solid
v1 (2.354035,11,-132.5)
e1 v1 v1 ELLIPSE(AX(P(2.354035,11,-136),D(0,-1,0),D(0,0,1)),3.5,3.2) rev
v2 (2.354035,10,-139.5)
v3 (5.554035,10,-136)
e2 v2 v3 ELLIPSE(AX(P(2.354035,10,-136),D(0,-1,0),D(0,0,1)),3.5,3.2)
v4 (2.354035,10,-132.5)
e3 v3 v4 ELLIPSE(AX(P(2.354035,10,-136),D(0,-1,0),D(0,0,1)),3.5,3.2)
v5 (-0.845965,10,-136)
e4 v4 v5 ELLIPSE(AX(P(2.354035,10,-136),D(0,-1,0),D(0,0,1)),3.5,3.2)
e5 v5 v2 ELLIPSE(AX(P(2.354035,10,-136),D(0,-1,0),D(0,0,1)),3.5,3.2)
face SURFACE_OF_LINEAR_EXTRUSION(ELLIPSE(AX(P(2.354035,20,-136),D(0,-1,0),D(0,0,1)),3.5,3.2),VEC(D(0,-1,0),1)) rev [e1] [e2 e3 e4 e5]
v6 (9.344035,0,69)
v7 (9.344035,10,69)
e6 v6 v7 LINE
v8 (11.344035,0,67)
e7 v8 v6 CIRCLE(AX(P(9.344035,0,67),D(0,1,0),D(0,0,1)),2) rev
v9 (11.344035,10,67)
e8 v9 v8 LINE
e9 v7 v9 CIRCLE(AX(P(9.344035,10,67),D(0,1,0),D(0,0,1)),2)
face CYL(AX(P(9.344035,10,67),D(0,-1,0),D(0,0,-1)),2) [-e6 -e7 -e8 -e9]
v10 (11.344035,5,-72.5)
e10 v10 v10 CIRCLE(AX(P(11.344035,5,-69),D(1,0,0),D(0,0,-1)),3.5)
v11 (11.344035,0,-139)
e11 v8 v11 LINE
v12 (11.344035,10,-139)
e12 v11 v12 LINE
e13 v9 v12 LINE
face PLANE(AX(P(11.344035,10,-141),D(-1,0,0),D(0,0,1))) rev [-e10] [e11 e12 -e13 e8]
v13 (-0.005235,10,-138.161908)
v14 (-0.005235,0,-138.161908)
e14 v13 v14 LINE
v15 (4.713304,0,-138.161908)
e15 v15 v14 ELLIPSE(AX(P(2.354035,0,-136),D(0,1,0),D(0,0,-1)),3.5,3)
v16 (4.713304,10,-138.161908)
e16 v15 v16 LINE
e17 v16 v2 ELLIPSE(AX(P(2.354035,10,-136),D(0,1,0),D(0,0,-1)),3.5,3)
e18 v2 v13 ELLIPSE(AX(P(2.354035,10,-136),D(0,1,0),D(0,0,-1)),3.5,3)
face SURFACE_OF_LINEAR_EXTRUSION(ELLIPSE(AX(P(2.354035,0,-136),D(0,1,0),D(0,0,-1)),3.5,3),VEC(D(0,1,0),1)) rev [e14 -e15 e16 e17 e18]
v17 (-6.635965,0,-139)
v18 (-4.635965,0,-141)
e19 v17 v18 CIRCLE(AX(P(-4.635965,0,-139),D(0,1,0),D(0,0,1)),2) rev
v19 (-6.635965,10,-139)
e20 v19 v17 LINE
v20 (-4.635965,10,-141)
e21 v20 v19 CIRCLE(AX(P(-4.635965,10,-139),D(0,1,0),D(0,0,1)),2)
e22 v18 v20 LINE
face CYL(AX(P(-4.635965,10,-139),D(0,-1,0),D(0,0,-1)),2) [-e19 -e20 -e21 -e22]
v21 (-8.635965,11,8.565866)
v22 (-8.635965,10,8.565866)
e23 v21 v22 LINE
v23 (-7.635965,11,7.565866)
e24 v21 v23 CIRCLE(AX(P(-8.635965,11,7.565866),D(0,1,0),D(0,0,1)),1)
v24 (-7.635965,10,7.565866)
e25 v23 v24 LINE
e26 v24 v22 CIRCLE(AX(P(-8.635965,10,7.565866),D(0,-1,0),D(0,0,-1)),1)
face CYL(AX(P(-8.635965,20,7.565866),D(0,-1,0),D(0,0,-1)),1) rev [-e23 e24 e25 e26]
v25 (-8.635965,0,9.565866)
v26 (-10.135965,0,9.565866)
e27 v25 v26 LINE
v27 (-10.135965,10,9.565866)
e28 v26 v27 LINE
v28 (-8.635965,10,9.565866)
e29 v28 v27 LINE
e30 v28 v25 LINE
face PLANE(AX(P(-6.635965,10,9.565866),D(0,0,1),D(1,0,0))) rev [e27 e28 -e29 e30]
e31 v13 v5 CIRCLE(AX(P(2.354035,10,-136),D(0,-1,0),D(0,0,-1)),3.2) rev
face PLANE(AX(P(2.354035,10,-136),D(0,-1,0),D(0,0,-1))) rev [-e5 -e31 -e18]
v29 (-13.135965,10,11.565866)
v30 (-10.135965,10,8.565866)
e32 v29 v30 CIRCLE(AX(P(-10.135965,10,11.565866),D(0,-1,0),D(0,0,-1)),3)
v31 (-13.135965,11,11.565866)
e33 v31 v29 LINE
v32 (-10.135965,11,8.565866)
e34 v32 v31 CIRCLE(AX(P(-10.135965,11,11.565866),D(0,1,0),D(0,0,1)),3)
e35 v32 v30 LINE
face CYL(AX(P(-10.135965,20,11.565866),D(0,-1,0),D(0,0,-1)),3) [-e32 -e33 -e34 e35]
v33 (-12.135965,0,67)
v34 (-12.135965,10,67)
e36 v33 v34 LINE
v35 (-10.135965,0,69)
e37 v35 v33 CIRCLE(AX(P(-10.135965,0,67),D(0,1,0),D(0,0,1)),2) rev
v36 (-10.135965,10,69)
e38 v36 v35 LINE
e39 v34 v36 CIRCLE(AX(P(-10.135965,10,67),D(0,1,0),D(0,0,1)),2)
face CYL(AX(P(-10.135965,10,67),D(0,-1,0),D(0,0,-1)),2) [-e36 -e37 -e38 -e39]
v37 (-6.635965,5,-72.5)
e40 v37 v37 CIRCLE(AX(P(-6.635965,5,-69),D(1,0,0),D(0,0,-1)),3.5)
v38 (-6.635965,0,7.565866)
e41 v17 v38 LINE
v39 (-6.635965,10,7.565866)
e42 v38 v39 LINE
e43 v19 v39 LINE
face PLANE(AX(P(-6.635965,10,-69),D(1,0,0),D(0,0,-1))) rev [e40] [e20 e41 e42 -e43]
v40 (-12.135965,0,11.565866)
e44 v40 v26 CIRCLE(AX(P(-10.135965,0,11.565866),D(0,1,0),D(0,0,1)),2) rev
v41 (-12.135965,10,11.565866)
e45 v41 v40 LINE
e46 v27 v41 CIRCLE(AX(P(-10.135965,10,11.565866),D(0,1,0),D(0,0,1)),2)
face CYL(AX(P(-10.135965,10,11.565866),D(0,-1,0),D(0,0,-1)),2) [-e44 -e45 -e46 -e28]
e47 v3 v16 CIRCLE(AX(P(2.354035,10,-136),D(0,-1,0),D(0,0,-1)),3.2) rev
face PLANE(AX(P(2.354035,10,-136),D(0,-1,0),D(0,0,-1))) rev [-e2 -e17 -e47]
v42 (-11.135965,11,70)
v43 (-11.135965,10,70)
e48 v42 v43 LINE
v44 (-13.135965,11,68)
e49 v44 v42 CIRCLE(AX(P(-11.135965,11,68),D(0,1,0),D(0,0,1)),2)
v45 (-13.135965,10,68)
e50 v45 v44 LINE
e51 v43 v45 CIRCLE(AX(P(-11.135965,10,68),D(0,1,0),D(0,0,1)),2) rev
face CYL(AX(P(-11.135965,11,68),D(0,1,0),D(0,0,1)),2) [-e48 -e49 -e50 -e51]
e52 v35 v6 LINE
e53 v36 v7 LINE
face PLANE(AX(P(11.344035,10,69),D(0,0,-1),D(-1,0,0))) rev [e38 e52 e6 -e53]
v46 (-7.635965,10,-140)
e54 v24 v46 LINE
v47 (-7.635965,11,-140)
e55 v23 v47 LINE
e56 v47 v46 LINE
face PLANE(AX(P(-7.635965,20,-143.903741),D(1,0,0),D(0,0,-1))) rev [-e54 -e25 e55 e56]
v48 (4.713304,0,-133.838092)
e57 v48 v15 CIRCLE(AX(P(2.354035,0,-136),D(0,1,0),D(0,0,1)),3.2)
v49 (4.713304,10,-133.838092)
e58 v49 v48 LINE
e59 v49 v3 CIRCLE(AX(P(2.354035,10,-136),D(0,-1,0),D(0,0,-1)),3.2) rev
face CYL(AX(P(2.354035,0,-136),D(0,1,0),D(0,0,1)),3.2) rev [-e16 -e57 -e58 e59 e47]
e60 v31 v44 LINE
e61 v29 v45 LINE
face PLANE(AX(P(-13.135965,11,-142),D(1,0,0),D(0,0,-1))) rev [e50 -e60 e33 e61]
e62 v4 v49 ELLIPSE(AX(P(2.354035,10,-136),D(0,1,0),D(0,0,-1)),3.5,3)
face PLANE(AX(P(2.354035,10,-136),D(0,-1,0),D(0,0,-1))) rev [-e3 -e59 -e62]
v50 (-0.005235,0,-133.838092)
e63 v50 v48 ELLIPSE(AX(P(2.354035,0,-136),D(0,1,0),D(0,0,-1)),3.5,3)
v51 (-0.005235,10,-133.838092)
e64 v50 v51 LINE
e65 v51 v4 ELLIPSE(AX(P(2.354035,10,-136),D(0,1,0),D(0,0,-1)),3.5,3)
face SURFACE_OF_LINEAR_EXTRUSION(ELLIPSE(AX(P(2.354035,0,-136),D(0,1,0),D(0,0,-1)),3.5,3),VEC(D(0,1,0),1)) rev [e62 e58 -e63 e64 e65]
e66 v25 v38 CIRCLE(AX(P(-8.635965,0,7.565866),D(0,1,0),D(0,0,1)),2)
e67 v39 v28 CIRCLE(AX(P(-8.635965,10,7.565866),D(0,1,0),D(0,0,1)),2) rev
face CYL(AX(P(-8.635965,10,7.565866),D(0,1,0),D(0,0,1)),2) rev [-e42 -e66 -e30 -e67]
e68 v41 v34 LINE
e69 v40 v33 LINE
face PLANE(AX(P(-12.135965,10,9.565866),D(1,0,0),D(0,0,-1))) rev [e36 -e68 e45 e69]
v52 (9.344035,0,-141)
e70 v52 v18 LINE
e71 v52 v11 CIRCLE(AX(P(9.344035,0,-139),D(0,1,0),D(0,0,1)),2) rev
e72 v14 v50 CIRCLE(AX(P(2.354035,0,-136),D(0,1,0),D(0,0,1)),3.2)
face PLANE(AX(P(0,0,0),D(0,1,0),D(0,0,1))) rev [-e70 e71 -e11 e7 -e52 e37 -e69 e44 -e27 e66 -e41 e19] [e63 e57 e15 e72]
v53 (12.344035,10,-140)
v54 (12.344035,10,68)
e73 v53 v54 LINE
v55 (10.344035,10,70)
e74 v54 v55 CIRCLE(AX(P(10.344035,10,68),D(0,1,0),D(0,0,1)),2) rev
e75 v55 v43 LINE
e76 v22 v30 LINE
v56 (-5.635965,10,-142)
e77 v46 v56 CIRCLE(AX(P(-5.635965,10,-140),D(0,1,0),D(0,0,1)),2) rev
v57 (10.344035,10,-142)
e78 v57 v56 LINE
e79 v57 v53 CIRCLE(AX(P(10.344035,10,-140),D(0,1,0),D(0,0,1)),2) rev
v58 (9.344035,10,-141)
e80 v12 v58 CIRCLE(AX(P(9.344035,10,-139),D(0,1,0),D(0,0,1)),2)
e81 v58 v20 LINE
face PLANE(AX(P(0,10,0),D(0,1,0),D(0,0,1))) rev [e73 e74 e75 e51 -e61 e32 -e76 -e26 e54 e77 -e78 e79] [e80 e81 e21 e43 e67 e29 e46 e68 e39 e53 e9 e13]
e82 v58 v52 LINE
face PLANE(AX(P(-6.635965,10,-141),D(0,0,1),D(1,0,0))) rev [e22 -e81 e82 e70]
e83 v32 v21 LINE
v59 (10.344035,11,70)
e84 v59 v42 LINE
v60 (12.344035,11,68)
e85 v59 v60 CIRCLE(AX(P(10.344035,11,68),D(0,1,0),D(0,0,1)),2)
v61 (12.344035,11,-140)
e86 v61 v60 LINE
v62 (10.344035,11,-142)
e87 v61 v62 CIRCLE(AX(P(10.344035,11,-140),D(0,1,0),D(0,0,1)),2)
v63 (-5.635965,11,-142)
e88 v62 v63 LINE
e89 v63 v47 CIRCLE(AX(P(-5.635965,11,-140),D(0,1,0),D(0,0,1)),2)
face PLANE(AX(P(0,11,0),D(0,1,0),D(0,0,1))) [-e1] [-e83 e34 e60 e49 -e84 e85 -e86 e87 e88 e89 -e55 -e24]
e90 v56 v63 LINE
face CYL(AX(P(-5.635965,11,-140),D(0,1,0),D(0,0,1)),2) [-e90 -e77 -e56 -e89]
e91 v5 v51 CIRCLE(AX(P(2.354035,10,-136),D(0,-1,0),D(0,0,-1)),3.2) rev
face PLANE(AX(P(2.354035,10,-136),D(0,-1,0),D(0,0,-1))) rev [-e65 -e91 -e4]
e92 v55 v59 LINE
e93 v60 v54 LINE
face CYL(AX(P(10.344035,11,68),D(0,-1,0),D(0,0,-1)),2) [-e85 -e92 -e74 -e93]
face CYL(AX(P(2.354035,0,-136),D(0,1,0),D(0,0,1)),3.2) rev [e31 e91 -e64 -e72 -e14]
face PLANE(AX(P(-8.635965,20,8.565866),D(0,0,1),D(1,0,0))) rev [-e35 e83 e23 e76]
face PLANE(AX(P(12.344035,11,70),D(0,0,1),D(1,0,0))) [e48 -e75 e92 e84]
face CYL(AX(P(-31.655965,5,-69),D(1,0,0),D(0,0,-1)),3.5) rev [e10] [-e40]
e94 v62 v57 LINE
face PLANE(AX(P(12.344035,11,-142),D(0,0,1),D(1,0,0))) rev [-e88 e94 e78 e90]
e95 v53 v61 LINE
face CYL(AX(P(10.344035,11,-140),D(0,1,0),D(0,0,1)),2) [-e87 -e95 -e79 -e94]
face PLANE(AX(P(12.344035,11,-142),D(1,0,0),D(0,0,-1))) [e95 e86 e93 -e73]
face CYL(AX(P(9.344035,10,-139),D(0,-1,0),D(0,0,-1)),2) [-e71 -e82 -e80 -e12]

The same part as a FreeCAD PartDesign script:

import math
import FreeCAD as App
import Part
import Sketcher

V = App.Vector


def edges_at(feature, points):
    """Names of the edges that pass closest to the given points."""
    edges = feature.Shape.Edges
    near = lambda p: min(range(len(edges)), key=lambda i: edges[i].distToShape(Part.Vertex(*p))[0])
    return sorted({f"Edge{near(p) + 1}" for p in points})


def add_polygon(sketch, points):
    """Adds a closed chain of lines whose ends are joined by coincident constraints."""
    first, n = sketch.GeometryCount, len(points)
    for a, b in zip(points, points[1:] + points[:1]):
        sketch.addGeometry(Part.LineSegment(App.Vector(*a, 0), App.Vector(*b, 0)), False)
    for i in range(n):
        sketch.addConstraint(Sketcher.Constraint("Coincident", first + i, 2, first + (i + 1) % n, 1))

doc = App.newDocument("Part")
body = doc.addObject("PartDesign::Body", "Body")

# Sketch on XZ plane
sketch1 = doc.addObject("Sketcher::SketchObject", "Sketch")
body.addObject(sketch1)
sketch1.AttachmentSupport = (doc.XZ_Plane, [""])
sketch1.MapMode = "FlatFace"
add_polygon(sketch1, [(-12.135965, 69), (11.344035, 69), (11.344035, -141), (-6.635965, -141), (-6.635965, 9.565866), (-12.135965, 9.565866)])  # lines 0-5
sketch1.addConstraint([
    Sketcher.Constraint("Horizontal", 0),
    Sketcher.Constraint("Vertical", 1),
    Sketcher.Constraint("Horizontal", 2),
    Sketcher.Constraint("Vertical", 3),
    Sketcher.Constraint("Horizontal", 4),
    Sketcher.Constraint("Vertical", 5),
    Sketcher.Constraint("DistanceY", 1, 2, 1, 1, 210.0),
    Sketcher.Constraint("DistanceX", 4, 2, 4, 1, 5.5),
    Sketcher.Constraint("DistanceY", -1, 1, 0, 2, 69.0),
    Sketcher.Constraint("DistanceX", 0, 1, 0, 2, 23.48),
    Sketcher.Constraint("DistanceY", 3, 1, 3, 2, 150.565866),
    Sketcher.Constraint("DistanceX", -1, 1, 0, 2, 11.344035),
])
pad1 = doc.addObject("PartDesign::Pad", "Pad")
body.addObject(pad1)
pad1.Profile = sketch1
pad1.Length = 10
pad1.Reversed = True

# Sketch on XZ plane
sketch2 = doc.addObject("Sketcher::SketchObject", "Sketch001")
body.addObject(sketch2)
sketch2.AttachmentSupport = (doc.XZ_Plane, [""])
sketch2.MapMode = "FlatFace"
sketch2.AttachmentOffset = App.Placement(V(0, 0, -10), App.Rotation())
sketch2.addGeometry(Part.Ellipse(V(2.354035, -139.5, 0), V(5.354035, -136, 0), V(2.354035, -136, 0)), False)
sketch2.addConstraint(Sketcher.Constraint("Block", 0))
pocket1 = doc.addObject("PartDesign::Pocket", "Pocket")
body.addObject(pocket1)
pocket1.Profile = sketch2
pocket1.Length = 10
pocket1.Reversed = True

# Sketch on XZ plane
sketch3 = doc.addObject("Sketcher::SketchObject", "Sketch002")
body.addObject(sketch3)
sketch3.AttachmentSupport = (doc.XZ_Plane, [""])
sketch3.MapMode = "FlatFace"
sketch3.AttachmentOffset = App.Placement(V(0, 0, -10), App.Rotation())
sketch3.addGeometry(Part.Circle(V(2.354035, -136, 0), V(0, 0, 1), 3.2), False)
sketch3.addConstraint([
    Sketcher.Constraint("Diameter", 0, 6.4),
    Sketcher.Constraint("DistanceY", 0, 3, -1, 1, 136.0),
    Sketcher.Constraint("DistanceX", -1, 1, 0, 3, 2.354035),
])
pocket2 = doc.addObject("PartDesign::Pocket", "Pocket001")
body.addObject(pocket2)
pocket2.Profile = sketch3
pocket2.Length = 10
pocket2.Reversed = True

# Sketch on YZ plane
sketch4 = doc.addObject("Sketcher::SketchObject", "Sketch003")
body.addObject(sketch4)
sketch4.AttachmentSupport = (doc.YZ_Plane, [""])
sketch4.MapMode = "FlatFace"
sketch4.AttachmentOffset = App.Placement(V(0, 0, 11.344035), App.Rotation())
sketch4.addGeometry(Part.Circle(V(5, -69, 0), V(0, 0, 1), 3.5), False)
sketch4.addConstraint([
    Sketcher.Constraint("Diameter", 0, 7.0),
    Sketcher.Constraint("DistanceX", -1, 1, 0, 3, 5.0),
    Sketcher.Constraint("DistanceY", 0, 3, -1, 1, 69.0),
])
pocket3 = doc.addObject("PartDesign::Pocket", "Pocket002")
body.addObject(pocket3)
pocket3.Profile = sketch4
pocket3.Length = 43

# Sketch on XZ plane
sketch5 = doc.addObject("Sketcher::SketchObject", "Sketch004")
body.addObject(sketch5)
sketch5.AttachmentSupport = (doc.XZ_Plane, [""])
sketch5.MapMode = "FlatFace"
sketch5.AttachmentOffset = App.Placement(V(0, 0, -10), App.Rotation())
add_polygon(sketch5, [(-13.135965, -142), (-13.135965, 70), (12.344035, 70), (12.344035, -142)])  # lines 0-3
sketch5.addConstraint([
    Sketcher.Constraint("Vertical", 0),
    Sketcher.Constraint("Horizontal", 1),
    Sketcher.Constraint("Vertical", 2),
    Sketcher.Constraint("Horizontal", 3),
    Sketcher.Constraint("DistanceY", 0, 1, 0, 2, 212.0),
    Sketcher.Constraint("DistanceY", -1, 1, 0, 2, 70.0),
    Sketcher.Constraint("DistanceX", 1, 1, 1, 2, 25.48),
    Sketcher.Constraint("DistanceX", 0, 2, -1, 1, 13.135965),
])
pad2 = doc.addObject("PartDesign::Pad", "Pad001")
body.addObject(pad2)
pad2.Profile = sketch5
pad2.Length = 1
pad2.Reversed = True
doc.recompute()

fillet = doc.addObject("PartDesign::Fillet", "Fillet")
body.addObject(fillet)
fillet.Base = (pad2, edges_at(pad2, [
    (-6.636, 5, 9.566),
    (-6.636, 5, -141),
    (11.344, 5, -141),
    (11.344, 5, 69),
    (-12.136, 5, 69),
    (-12.136, 5, 9.566),
]))
fillet.Radius = 2

# Sketch on XZ plane
sketch6 = doc.addObject("Sketcher::SketchObject", "Sketch005")
body.addObject(sketch6)
sketch6.AttachmentSupport = (doc.XZ_Plane, [""])
sketch6.MapMode = "FlatFace"
sketch6.AttachmentOffset = App.Placement(V(0, 0, -10), App.Rotation())
sketch6.addGeometry([
    Part.LineSegment(V(-8.635965, 8.565866, 0), V(-10.135965, 8.565866, 0)),  # 0
    Part.ArcOfCircle(Part.Circle(V(-10.135965, 11.565866, 0), V(0, 0, 1), 3), math.radians(180), math.radians(270)),  # 1
    Part.LineSegment(V(-13.135965, 11.565866, 0), V(-13.142599, 11.565866, 0)),  # 2
    Part.LineSegment(V(-13.142599, 11.565866, 0), V(-13.142599, -143.903741, 0)),  # 3
    Part.LineSegment(V(-13.142599, -143.903741, 0), V(-7.635965, -143.903741, 0)),  # 4
    Part.LineSegment(V(-7.635965, -143.903741, 0), V(-7.635965, 7.565866, 0)),  # 5
    Part.ArcOfCircle(Part.Circle(V(-8.635965, 7.565866, 0), V(0, 0, 1), 1), math.radians(0), math.radians(90)),  # 6
], False)
sketch6.addConstraint([
    Sketcher.Constraint("Tangent", 0, 2, 1, 2),
    Sketcher.Constraint("Coincident", 1, 1, 2, 1),
    Sketcher.Constraint("Coincident", 2, 2, 3, 1),
    Sketcher.Constraint("Coincident", 3, 2, 4, 1),
    Sketcher.Constraint("Coincident", 4, 2, 5, 1),
    Sketcher.Constraint("Tangent", 5, 2, 6, 1),
    Sketcher.Constraint("Tangent", 6, 2, 0, 1),
    Sketcher.Constraint("Horizontal", 0),
    Sketcher.Constraint("Horizontal", 2),
    Sketcher.Constraint("Vertical", 3),
    Sketcher.Constraint("Horizontal", 4),
    Sketcher.Constraint("Vertical", 5),
    Sketcher.Constraint("Radius", 1, 3.0),
    Sketcher.Constraint("Radius", 6, 1.0),
    Sketcher.Constraint("DistanceX", 0, 2, 0, 1, 1.5),
    Sketcher.Constraint("DistanceY", 0, 2, 1, 1, 3.0),
    Sketcher.Constraint("DistanceX", 2, 2, -1, 1, 13.142599),
    Sketcher.Constraint("DistanceX", 2, 2, 2, 1, 0.006633),
    Sketcher.Constraint("DistanceY", 3, 2, 3, 1, 155.469607),
    Sketcher.Constraint("DistanceY", 3, 2, -1, 1, 143.903741),
])
pocket4 = doc.addObject("PartDesign::Pocket", "Pocket003")
body.addObject(pocket4)
pocket4.Profile = sketch6
pocket4.Length = 10
doc.recompute()

fillet2 = doc.addObject("PartDesign::Fillet", "Fillet001")
body.addObject(fillet2)
fillet2.Base = (pocket4, edges_at(pocket4, [
    (-7.636, 10.5, -142),
    (12.344, 10.5, -142),
    (-13.136, 10.5, 70),
    (12.344, 10.5, 70),
]))
fillet2.Radius = 2

# Sketch on XZ plane
sketch7 = doc.addObject("Sketcher::SketchObject", "Sketch006")
body.addObject(sketch7)
sketch7.AttachmentSupport = (doc.XZ_Plane, [""])
sketch7.MapMode = "FlatFace"
sketch7.AttachmentOffset = App.Placement(V(0, 0, -20), App.Rotation())
sketch7.addGeometry(Part.Circle(V(2.354035, -136, 0), V(0, 0, 1), 3.2), False)
sketch7.addConstraint([
    Sketcher.Constraint("Diameter", 0, 6.4),
    Sketcher.Constraint("DistanceY", 0, 3, -1, 1, 136.0),
    Sketcher.Constraint("DistanceX", -1, 1, 0, 3, 2.354035),
])
pocket5 = doc.addObject("PartDesign::Pocket", "Pocket004")
body.addObject(pocket5)
pocket5.Profile = sketch7
pocket5.Length = 10
pocket5.Reversed = True

# Sketch on XZ plane
sketch8 = doc.addObject("Sketcher::SketchObject", "Sketch007")
body.addObject(sketch8)
sketch8.AttachmentSupport = (doc.XZ_Plane, [""])
sketch8.MapMode = "FlatFace"
sketch8.AttachmentOffset = App.Placement(V(0, 0, -10), App.Rotation())
sketch8.addGeometry(Part.Ellipse(V(2.354035, -132.5, 0), V(-0.845965, -136, 0), V(2.354035, -136, 0)), False)
sketch8.addConstraint(Sketcher.Constraint("Block", 0))
pocket6 = doc.addObject("PartDesign::Pocket", "Pocket005")
body.addObject(pocket6)
pocket6.Profile = sketch8
pocket6.Length = 10

doc.recompute()
